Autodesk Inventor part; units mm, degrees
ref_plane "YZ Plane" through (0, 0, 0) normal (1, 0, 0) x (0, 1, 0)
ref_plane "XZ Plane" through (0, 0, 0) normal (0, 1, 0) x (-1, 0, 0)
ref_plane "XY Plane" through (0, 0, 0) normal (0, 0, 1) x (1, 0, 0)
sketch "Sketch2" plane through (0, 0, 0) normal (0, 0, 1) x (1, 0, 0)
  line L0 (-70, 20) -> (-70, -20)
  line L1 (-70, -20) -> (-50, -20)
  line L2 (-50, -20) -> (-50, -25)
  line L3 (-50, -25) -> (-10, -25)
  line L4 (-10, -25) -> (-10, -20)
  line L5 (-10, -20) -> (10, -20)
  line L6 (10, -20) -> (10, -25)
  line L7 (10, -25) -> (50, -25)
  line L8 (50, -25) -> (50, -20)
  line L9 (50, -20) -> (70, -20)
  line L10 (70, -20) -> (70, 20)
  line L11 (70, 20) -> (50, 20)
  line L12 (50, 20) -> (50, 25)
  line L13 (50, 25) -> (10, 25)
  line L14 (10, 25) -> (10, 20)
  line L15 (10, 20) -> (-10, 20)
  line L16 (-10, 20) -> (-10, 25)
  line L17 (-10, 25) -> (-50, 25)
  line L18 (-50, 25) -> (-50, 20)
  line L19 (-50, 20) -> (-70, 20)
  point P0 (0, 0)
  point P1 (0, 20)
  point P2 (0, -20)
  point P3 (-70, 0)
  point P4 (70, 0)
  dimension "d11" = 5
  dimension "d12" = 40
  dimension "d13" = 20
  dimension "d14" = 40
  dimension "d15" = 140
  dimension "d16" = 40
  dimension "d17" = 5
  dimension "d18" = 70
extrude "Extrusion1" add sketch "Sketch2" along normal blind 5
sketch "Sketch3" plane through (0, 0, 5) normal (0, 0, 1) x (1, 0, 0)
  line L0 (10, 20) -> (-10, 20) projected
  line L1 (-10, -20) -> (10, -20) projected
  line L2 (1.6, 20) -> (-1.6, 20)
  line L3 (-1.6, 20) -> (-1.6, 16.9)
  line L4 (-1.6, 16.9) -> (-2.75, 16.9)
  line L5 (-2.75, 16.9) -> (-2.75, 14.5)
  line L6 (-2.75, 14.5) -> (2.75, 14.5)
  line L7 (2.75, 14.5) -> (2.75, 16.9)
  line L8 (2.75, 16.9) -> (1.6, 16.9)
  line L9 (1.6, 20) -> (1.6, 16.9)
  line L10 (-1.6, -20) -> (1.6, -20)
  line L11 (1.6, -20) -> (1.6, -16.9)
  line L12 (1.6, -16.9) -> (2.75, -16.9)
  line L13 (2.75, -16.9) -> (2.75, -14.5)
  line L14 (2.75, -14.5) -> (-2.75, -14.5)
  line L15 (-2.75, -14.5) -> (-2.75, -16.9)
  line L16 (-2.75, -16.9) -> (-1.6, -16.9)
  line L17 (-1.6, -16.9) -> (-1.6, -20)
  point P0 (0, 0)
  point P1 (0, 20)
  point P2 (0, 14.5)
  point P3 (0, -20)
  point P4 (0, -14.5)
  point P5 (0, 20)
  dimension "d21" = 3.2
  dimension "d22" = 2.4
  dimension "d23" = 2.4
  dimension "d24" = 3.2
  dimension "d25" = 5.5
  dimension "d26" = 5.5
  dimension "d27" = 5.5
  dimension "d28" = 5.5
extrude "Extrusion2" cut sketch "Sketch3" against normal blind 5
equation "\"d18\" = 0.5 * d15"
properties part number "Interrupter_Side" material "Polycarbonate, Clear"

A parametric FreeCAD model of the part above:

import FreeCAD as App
import Part
import Sketcher
Q = App.Units.Quantity


def add_polygon(sketch, points):
    """Adds a closed chain of lines whose ends are joined by coincident constraints."""
    first, n = sketch.GeometryCount, len(points)
    for a, b in zip(points, points[1:] + points[:1]):
        sketch.addGeometry(Part.LineSegment(App.Vector(*a, 0), App.Vector(*b, 0)), False)
    for i in range(n):
        sketch.addConstraint(Sketcher.Constraint("Coincident", first + i, 2, first + (i + 1) % n, 1))

doc = App.newDocument("Part")
body = doc.addObject("PartDesign::Body", "Body")

# Sketch on XY plane
sketch1 = body.newObject("Sketcher::SketchObject", "Sketch")
sketch1.AttachmentSupport = (doc.getObject("XY_Plane"), [""])
sketch1.MapMode = "FlatFace"
add_polygon(sketch1, [(-50, 20), (-70, 20), (-70, -20), (-50, -20), (-50, -25), (-10, -25), (-10, -20), (10, -20), (10, -25), (50, -25), (50, -20), (70, -20), (70, 20), (50, 20), (50, 25), (10, 25), (10, 20), (-10, 20), (-10, 25), (-50, 25)])  # lines 0-19
sketch1.addConstraint([
    Sketcher.Constraint("Horizontal", 0),
    Sketcher.Constraint("Vertical", 1),
    Sketcher.Constraint("Horizontal", 2),
    Sketcher.Constraint("Vertical", 3),
    Sketcher.Constraint("Horizontal", 4),
    Sketcher.Constraint("Vertical", 5),
    Sketcher.Constraint("Horizontal", 6),
    Sketcher.Constraint("Vertical", 7),
    Sketcher.Constraint("Horizontal", 8),
    Sketcher.Constraint("Vertical", 9),
    Sketcher.Constraint("Horizontal", 10),
    Sketcher.Constraint("Vertical", 11),
    Sketcher.Constraint("Horizontal", 12),
    Sketcher.Constraint("Vertical", 13),
    Sketcher.Constraint("Horizontal", 14),
    Sketcher.Constraint("Vertical", 15),
    Sketcher.Constraint("Horizontal", 16),
    Sketcher.Constraint("Vertical", 17),
    Sketcher.Constraint("Horizontal", 18),
    Sketcher.Constraint("Vertical", 19),
    Sketcher.Constraint("Symmetric", 0, 2, 10, 2, -1, 1),
    Sketcher.Constraint("Symmetric", 2, 2, 12, 2, -1, 1),
    Sketcher.Constraint("Symmetric", 4, 2, 14, 2, -1, 1),
    Sketcher.Constraint("Symmetric", 6, 2, 16, 2, -1, 1),
    Sketcher.Constraint("Symmetric", 8, 2, 18, 2, -1, 1),
    Sketcher.Constraint("Symmetric", 4, 2, 7, 2, -2),
    Sketcher.Constraint("Symmetric", 2, 2, 9, 2, -2),
    Sketcher.Constraint("Horizontal", 2, 2, 5, 2),
    Sketcher.Constraint("Equal", 2, 6),
    Sketcher.Constraint("Equal", 18, 1),
    Sketcher.Constraint("DistanceX", 0, 2, 0, 1, Q("20 mm")),
    Sketcher.Constraint("DistanceX", 4, 1, 4, 2, Q("40 mm")),
    Sketcher.Constraint("DistanceY", 3, 2, 3, 1, Q("5 mm")),
])
pad1 = body.newObject("PartDesign::Pad", "Pad")
pad1.Profile = sketch1
pad1.Length = 5

# Sketch on XY plane
sketch2 = body.newObject("Sketcher::SketchObject", "Sketch001")
sketch2.AttachmentSupport = (doc.getObject("XY_Plane"), [""])
sketch2.MapMode = "FlatFace"
sketch2.AttachmentOffset = App.Placement(App.Vector(0, 0, 5), App.Rotation())
add_polygon(sketch2, [(1.6, 16.9), (1.6, 20), (-1.6, 20), (-1.6, 16.9), (-2.8, 16.9), (-2.8, 14.5), (2.8, 14.5), (2.8, 16.9)])  # lines 0-7
add_polygon(sketch2, [(-1.6, -16.9), (-1.6, -20), (1.6, -20), (1.6, -16.9), (2.8, -16.9), (2.8, -14.5), (-2.8, -14.5), (-2.8, -16.9)])  # lines 8-15
sketch2.addConstraint([
    Sketcher.Constraint("Vertical", 0),
    Sketcher.Constraint("Horizontal", 1),
    Sketcher.Constraint("Vertical", 2),
    Sketcher.Constraint("Horizontal", 3),
    Sketcher.Constraint("Vertical", 4),
    Sketcher.Constraint("Horizontal", 5),
    Sketcher.Constraint("Vertical", 6),
    Sketcher.Constraint("Horizontal", 7),
    Sketcher.Constraint("Vertical", 8),
    Sketcher.Constraint("Horizontal", 9),
    Sketcher.Constraint("Vertical", 10),
    Sketcher.Constraint("Horizontal", 11),
    Sketcher.Constraint("Vertical", 12),
    Sketcher.Constraint("Horizontal", 13),
    Sketcher.Constraint("Vertical", 14),
    Sketcher.Constraint("Horizontal", 15),
    Sketcher.Constraint("Symmetric", 0, 2, 8, 2, -1, 1),
    Sketcher.Constraint("Symmetric", 2, 2, 10, 2, -1, 1),
    Sketcher.Constraint("Symmetric", 4, 2, 12, 2, -1, 1),
    Sketcher.Constraint("Symmetric", 6, 2, 14, 2, -1, 1),
    Sketcher.Constraint("Symmetric", 3, 2, 6, 2, -2),
    Sketcher.Constraint("Vertical", 2, 2, 8, 2),
    Sketcher.Constraint("DistanceX", 1, 2, 1, 1, Q("3.2 mm")),
    Sketcher.Constraint("DistanceX", 5, 1, 5, 2, Q("5.5 mm")),
    Sketcher.Constraint("DistanceY", 4, 2, 4, 1, Q("2.4 mm")),
    Sketcher.Constraint("DistanceY", 4, 2, 1, 2, Q("5.5 mm")),
    Sketcher.Constraint("DistanceY", -1, 1, 0, 2, Q("20 mm")),
])
pocket1 = body.newObject("PartDesign::Pocket", "Pocket")
pocket1.Profile = sketch2
pocket1.Length = 5

doc.recompute()
